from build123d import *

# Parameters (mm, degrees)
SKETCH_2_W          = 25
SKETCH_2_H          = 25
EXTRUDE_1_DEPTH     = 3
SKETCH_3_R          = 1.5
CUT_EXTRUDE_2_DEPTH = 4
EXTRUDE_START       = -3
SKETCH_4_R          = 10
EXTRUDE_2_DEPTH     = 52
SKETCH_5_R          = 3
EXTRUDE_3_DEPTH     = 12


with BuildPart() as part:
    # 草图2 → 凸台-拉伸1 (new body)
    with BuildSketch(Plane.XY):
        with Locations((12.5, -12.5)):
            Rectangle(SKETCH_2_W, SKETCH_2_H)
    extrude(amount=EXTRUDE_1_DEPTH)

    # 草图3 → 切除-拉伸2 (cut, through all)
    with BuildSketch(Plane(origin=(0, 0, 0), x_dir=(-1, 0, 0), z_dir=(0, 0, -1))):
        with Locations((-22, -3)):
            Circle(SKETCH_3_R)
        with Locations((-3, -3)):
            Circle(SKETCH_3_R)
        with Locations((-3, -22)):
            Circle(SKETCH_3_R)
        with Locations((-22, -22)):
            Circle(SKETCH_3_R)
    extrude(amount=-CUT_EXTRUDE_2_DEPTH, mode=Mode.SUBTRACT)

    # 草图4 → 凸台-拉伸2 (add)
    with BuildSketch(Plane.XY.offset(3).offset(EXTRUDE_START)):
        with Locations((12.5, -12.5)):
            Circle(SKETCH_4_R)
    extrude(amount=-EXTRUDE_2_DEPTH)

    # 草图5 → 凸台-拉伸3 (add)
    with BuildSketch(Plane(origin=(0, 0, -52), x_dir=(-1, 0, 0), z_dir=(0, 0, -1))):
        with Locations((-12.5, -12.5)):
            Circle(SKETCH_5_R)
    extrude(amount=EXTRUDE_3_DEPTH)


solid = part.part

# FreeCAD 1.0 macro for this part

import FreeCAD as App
import Part
import Sketcher
Q = App.Units.Quantity


def add_polygon(sketch, points):
    """Adds a closed chain of lines whose ends are joined by coincident constraints."""
    first, n = sketch.GeometryCount, len(points)
    for a, b in zip(points, points[1:] + points[:1]):
        sketch.addGeometry(Part.LineSegment(App.Vector(*a, 0), App.Vector(*b, 0)), False)
    for i in range(n):
        sketch.addConstraint(Sketcher.Constraint("Coincident", first + i, 2, first + (i + 1) % n, 1))

doc = App.newDocument("Part")
params = doc.addObject("Spreadsheet::Sheet", "Params")
for row, (alias, value) in enumerate([
    ("sketch1_width", "25 mm"),
    ("pad1_length", "3 mm"),
    ("sketch2_diameter", "3 mm"),
    ("sketch3_diameter", "20 mm"),
    ("pad2_length", "52 mm"),
    ("sketch4_diameter", "6 mm"),
    ("pad3_length", "12 mm"),
], start=1):
    params.set(f"A{row}", alias)
    params.set(f"B{row}", "=" + value)
    params.setAlias(f"B{row}", alias)

body = doc.addObject("PartDesign::Body", "Body")

# Sketch on XY plane
sketch1 = body.newObject("Sketcher::SketchObject", "Sketch")
sketch1.AttachmentSupport = (doc.getObject("XY_Plane"), [""])
sketch1.MapMode = "FlatFace"
add_polygon(sketch1, [(0, 0), (0, -25), (25, -25), (25, 0)])  # lines 0-3
sketch1.addConstraint([
    Sketcher.Constraint("Vertical", 0),
    Sketcher.Constraint("Horizontal", 1),
    Sketcher.Constraint("Vertical", 2),
    Sketcher.Constraint("Horizontal", 3),
    Sketcher.Constraint("Coincident", 3, 2, -1, 1),
    Sketcher.Constraint("Equal", 3, 0),
    Sketcher.Constraint("DistanceX", 1, 1, 1, 2, Q("25 mm")),
])
sketch1.setExpression("Constraints[10]", "Params.sketch1_width")
pad1 = body.newObject("PartDesign::Pad", "Pad")
pad1.Profile = sketch1
pad1.setExpression("Length", "Params.pad1_length")

# Sketch on XY plane
sketch2 = body.newObject("Sketcher::SketchObject", "Sketch001")
sketch2.AttachmentSupport = (doc.getObject("XY_Plane"), [""])
sketch2.MapMode = "FlatFace"
sketch2.addGeometry([
    Part.Circle(App.Vector(22, -3, 0), App.Vector(0, 0, 1), 1.5),
    Part.Circle(App.Vector(3, -3, 0), App.Vector(0, 0, 1), 1.5),
    Part.Circle(App.Vector(3, -22, 0), App.Vector(0, 0, 1), 1.5),
    Part.Circle(App.Vector(22, -22, 0), App.Vector(0, 0, 1), 1.5),
], False)
sketch2.addConstraint([
    Sketcher.Constraint("Equal", 0, 1),
    Sketcher.Constraint("Equal", 1, 2),
    Sketcher.Constraint("Equal", 2, 3),
    Sketcher.Constraint("Horizontal", 0, 3, 1, 3),
    Sketcher.Constraint("Horizontal", 2, 3, 3, 3),
    Sketcher.Constraint("Vertical", 1, 3, 2, 3),
    Sketcher.Constraint("Vertical", 0, 3, 3, 3),
    Sketcher.Constraint("Diameter", 0, Q("3 mm")),
    Sketcher.Constraint("DistanceX", -1, 1, 0, 3, Q("22 mm")),
    Sketcher.Constraint("DistanceY", 0, 3, -1, 1, Q("3 mm")),
    Sketcher.Constraint("DistanceX", -1, 1, 1, 3, Q("3 mm")),
    Sketcher.Constraint("DistanceY", 2, 3, -1, 1, Q("22 mm")),
])
sketch2.setExpression("Constraints[7]", "Params.sketch2_diameter")
pocket1 = body.newObject("PartDesign::Pocket", "Pocket")
pocket1.Profile = sketch2
pocket1.Type = "ThroughAll"
pocket1.Reversed = True

# Sketch on XY plane
sketch3 = body.newObject("Sketcher::SketchObject", "Sketch002")
sketch3.AttachmentSupport = (doc.getObject("XY_Plane"), [""])
sketch3.MapMode = "FlatFace"
sketch3.addGeometry(Part.Circle(App.Vector(12.5, -12.5, 0), App.Vector(0, 0, 1), 10), False)
sketch3.addConstraint([
    Sketcher.Constraint("Diameter", 0, Q("20 mm")),
    Sketcher.Constraint("DistanceX", -1, 1, 0, 3, Q("12.5 mm")),
    Sketcher.Constraint("DistanceY", 0, 3, -1, 1, Q("12.5 mm")),
])
sketch3.setExpression("Constraints[0]", "Params.sketch3_diameter")
pad2 = body.newObject("PartDesign::Pad", "Pad001")
pad2.Profile = sketch3
pad2.setExpression("Length", "Params.pad2_length")
pad2.Reversed = True

# Sketch on XY plane
sketch4 = body.newObject("Sketcher::SketchObject", "Sketch003")
sketch4.AttachmentSupport = (doc.getObject("XY_Plane"), [""])
sketch4.MapMode = "FlatFace"
sketch4.AttachmentOffset = App.Placement(App.Vector(0, 0, -52), App.Rotation())
sketch4.addGeometry(Part.Circle(App.Vector(12.5, -12.5, 0), App.Vector(0, 0, 1), 3), False)
sketch4.addConstraint([
    Sketcher.Constraint("Diameter", 0, Q("6 mm")),
    Sketcher.Constraint("DistanceX", -1, 1, 0, 3, Q("12.5 mm")),
    Sketcher.Constraint("DistanceY", 0, 3, -1, 1, Q("12.5 mm")),
])
sketch4.setExpression("Constraints[0]", "Params.sketch4_diameter")
pad3 = body.newObject("PartDesign::Pad", "Pad002")
pad3.Profile = sketch4
pad3.setExpression("Length", "Params.pad3_length")
pad3.Reversed = True

doc.recompute()
